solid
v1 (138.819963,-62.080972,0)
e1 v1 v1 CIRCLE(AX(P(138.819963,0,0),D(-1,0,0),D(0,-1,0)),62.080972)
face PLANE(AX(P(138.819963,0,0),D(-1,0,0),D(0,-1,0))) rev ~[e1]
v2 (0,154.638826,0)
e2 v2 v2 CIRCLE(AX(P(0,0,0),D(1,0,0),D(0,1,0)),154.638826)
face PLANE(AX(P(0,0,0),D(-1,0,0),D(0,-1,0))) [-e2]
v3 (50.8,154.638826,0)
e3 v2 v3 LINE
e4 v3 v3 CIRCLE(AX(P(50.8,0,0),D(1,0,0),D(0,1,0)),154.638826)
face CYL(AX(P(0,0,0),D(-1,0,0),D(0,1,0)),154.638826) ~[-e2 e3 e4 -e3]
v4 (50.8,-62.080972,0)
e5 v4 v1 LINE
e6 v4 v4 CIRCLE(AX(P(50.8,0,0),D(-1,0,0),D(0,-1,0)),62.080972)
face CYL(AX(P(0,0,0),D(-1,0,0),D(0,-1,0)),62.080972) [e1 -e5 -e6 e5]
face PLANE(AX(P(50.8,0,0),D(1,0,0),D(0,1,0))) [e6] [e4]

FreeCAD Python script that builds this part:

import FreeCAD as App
import Part
import Sketcher
Q = App.Units.Quantity

doc = App.newDocument("Part")
body = doc.addObject("PartDesign::Body", "Body")

# Sketch on YZ plane
sketch1 = body.newObject("Sketcher::SketchObject", "Sketch")
sketch1.AttachmentSupport = (doc.getObject("YZ_Plane"), [""])
sketch1.MapMode = "FlatFace"
sketch1.addGeometry(Part.Circle(App.Vector(0, 0, 0), App.Vector(0, 0, 1), 155), False)
sketch1.addConstraint([
    Sketcher.Constraint("Coincident", 0, 3, -1, 1),
    Sketcher.Constraint("Diameter", 0, Q("309.277652 mm")),
])
pad1 = body.newObject("PartDesign::Pad", "Pad")
pad1.Profile = sketch1
pad1.Length = Q("2 in")

# Sketch on YZ plane
sketch2 = body.newObject("Sketcher::SketchObject", "Sketch001")
sketch2.AttachmentSupport = (doc.getObject("YZ_Plane"), [""])
sketch2.MapMode = "FlatFace"
sketch2.addGeometry(Part.Circle(App.Vector(0, 0, 0), App.Vector(0, 0, 1), 62), False)
sketch2.addConstraint([
    Sketcher.Constraint("Coincident", 0, 3, -1, 1),
    Sketcher.Constraint("Diameter", 0, Q("124.161944 mm")),
])
pad2 = body.newObject("PartDesign::Pad", "Pad001")
pad2.Profile = sketch2
pad2.Length = 138.819963

doc.recompute()
